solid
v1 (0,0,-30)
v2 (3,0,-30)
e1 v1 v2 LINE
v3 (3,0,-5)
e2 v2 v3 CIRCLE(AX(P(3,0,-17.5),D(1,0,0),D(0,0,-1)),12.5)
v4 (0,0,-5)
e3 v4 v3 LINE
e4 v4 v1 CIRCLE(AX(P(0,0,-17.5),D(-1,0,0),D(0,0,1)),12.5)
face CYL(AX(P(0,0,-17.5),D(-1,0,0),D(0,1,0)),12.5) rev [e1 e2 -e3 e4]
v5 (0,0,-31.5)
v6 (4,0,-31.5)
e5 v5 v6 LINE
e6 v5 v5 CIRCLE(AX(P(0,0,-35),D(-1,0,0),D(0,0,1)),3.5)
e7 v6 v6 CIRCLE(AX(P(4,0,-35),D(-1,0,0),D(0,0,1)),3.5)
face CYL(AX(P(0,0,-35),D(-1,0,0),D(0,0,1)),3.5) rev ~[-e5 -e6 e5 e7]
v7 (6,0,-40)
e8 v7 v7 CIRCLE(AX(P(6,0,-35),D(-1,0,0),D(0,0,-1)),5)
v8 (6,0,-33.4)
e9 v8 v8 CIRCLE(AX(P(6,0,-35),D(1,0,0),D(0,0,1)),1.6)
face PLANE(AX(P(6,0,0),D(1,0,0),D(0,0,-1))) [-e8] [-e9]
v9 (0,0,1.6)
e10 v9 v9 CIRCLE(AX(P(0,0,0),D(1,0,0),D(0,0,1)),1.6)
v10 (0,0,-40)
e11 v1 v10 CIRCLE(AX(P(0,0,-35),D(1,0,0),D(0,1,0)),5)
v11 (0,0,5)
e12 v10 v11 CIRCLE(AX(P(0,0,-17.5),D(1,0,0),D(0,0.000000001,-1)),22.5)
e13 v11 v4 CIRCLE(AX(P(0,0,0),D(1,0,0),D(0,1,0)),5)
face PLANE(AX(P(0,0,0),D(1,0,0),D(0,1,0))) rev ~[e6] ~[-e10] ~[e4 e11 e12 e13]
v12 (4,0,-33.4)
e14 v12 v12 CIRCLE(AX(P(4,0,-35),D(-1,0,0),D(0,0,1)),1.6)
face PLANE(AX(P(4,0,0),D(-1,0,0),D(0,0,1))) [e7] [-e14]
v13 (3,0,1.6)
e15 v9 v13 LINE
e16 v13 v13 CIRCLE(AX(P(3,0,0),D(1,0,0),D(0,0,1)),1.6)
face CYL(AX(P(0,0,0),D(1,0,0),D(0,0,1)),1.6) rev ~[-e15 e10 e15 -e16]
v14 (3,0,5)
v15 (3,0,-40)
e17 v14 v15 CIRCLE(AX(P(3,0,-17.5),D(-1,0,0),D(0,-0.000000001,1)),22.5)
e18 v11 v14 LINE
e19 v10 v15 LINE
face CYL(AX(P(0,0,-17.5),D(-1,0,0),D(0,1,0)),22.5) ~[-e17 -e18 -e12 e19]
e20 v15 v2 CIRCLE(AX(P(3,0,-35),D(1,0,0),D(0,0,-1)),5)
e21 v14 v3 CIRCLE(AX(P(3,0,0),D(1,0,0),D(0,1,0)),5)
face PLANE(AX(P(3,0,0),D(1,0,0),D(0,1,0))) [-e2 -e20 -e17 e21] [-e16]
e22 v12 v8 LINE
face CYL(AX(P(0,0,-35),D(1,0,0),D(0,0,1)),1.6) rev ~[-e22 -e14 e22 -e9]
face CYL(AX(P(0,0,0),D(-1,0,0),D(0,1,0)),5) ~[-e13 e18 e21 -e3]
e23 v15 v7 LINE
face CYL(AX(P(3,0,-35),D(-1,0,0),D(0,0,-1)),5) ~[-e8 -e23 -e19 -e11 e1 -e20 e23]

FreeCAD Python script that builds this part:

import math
import FreeCAD as App
import Part
import Sketcher
from FreeCAD import Vector
Q = App.Units.Quantity

doc = App.newDocument("Part")
params = doc.addObject("Spreadsheet::Sheet", "Params")
for row, (alias, value) in enumerate([
    ("sketch1_radius", "5 mm"),
    ("pad1_length", "3 mm"),
    ("sketch2_diameter", "10 mm"),
    ("pad2_length", "3 mm"),
    ("sketch3_diameter", "3.2 mm"),
    ("hole_diameter", "3.2 mm"),
    ("sketch4_diameter", "7 mm"),
    ("sketch4_diameter2", "3.2 mm"),
    ("pocket1_length", "4 mm"),
], start=1):
    params.set(f"A{row}", alias)
    params.set(f"B{row}", "=" + value)
    params.setAlias(f"B{row}", alias)

body = doc.addObject("PartDesign::Body", "Body")

sketch1 = body.newObject("Sketcher::SketchObject", "Sketch")
sketch1.AttachmentSupport = (doc.getObject("YZ_Plane"), [""])
sketch1.MapMode = "FlatFace"
sketch1.addGeometry(Part.ArcOfCircle(Part.Circle(Vector(0, 0, 0), Vector(0, 0, 1), 5), math.radians(90), math.radians(270)), False)
sketch1.addGeometry(Part.ArcOfCircle(Part.Circle(Vector(0, -18, 0), Vector(0, 0, 1), 12), math.radians(-90), math.radians(90)), False)
sketch1.addGeometry(Part.ArcOfCircle(Part.Circle(Vector(0, -35, 0), Vector(0, 0, 1), 5), math.radians(90), math.radians(270)), False)
sketch1.addGeometry(Part.ArcOfCircle(Part.Circle(Vector(0, -18, 0), Vector(0, 0, 1), 22), math.radians(-90), math.radians(90)), False)
sketch1.addConstraint(Sketcher.Constraint("Tangent", 0, 2, 1, 2))
sketch1.addConstraint(Sketcher.Constraint("Tangent", 1, 1, 2, 1))
sketch1.addConstraint(Sketcher.Constraint("Tangent", 2, 2, 3, 1))
sketch1.addConstraint(Sketcher.Constraint("Tangent", 3, 2, 0, 1))
sketch1.addConstraint(Sketcher.Constraint("Coincident", 0, 3, -1, 1))
sketch1.addConstraint(Sketcher.Constraint("Coincident", 3, 3, 1, 3))
sketch1.addConstraint(Sketcher.Constraint("PointOnObject", 1, 3, -2))
sketch1.addConstraint(Sketcher.Constraint("PointOnObject", 2, 3, -2))
sketch1.addConstraint(Sketcher.Constraint("Radius", 0, Q("5 mm")))
sketch1.addConstraint(Sketcher.Constraint("DistanceY", 2, 3, -1, 1, Q("35 mm")))
sketch1.setExpression("Constraints[8]", "Params.sketch1_radius")
pad1 = body.newObject("PartDesign::Pad", "Pad")
pad1.Profile = sketch1
pad1.setExpression("Length", "Params.pad1_length")

sketch2 = body.newObject("Sketcher::SketchObject", "Sketch001")
sketch2.AttachmentSupport = (doc.getObject("YZ_Plane"), [""])
sketch2.MapMode = "FlatFace"
sketch2.AttachmentOffset = App.Placement(Vector(0, 0, 3), App.Rotation())
sketch2.addGeometry(Part.Circle(Vector(0, -35, 0), Vector(0, 0, 1), 5), False)
sketch2.addConstraint(Sketcher.Constraint("PointOnObject", 0, 3, -2))
sketch2.addConstraint(Sketcher.Constraint("Diameter", 0, Q("10 mm")))
sketch2.addConstraint(Sketcher.Constraint("DistanceY", 0, 3, -1, 1, Q("35 mm")))
sketch2.setExpression("Constraints[1]", "Params.sketch2_diameter")
pad2 = body.newObject("PartDesign::Pad", "Pad001")
pad2.Profile = sketch2
pad2.setExpression("Length", "Params.pad2_length")

sketch3 = body.newObject("Sketcher::SketchObject", "Sketch002")
sketch3.AttachmentSupport = (doc.getObject("YZ_Plane"), [""])
sketch3.MapMode = "FlatFace"
sketch3.addGeometry(Part.Circle(Vector(0, -35, 0), Vector(0, 0, 1), 1.6), False)
sketch3.addGeometry(Part.Circle(Vector(0, 0, 0), Vector(0, 0, 1), 1.6), False)
sketch3.addConstraint(Sketcher.Constraint("Coincident", 1, 3, -1, 1))
sketch3.addConstraint(Sketcher.Constraint("Equal", 0, 1))
sketch3.addConstraint(Sketcher.Constraint("PointOnObject", 0, 3, -2))
sketch3.addConstraint(Sketcher.Constraint("Diameter", 0, Q("3.2 mm")))
sketch3.addConstraint(Sketcher.Constraint("DistanceY", 0, 3, -1, 1, Q("35 mm")))
sketch3.setExpression("Constraints[3]", "Params.sketch3_diameter")
doc.recompute()
hole = body.newObject("PartDesign::Hole", "Hole")
hole.Profile = sketch3
hole.ThreadType = "None"
hole.setExpression("Diameter", "Params.hole_diameter")
hole.DepthType = "ThroughAll"
hole.Reversed = True

sketch4 = body.newObject("Sketcher::SketchObject", "Sketch003")
sketch4.AttachmentSupport = (doc.getObject("YZ_Plane"), [""])
sketch4.MapMode = "FlatFace"
sketch4.addGeometry(Part.Circle(Vector(0, -35, 0), Vector(0, 0, 1), 3.5), False)
sketch4.addGeometry(Part.Circle(Vector(0, -35, 0), Vector(0, 0, 1), 1.6), False)
sketch4.addConstraint(Sketcher.Constraint("Coincident", 1, 3, 0, 3))
sketch4.addConstraint(Sketcher.Constraint("PointOnObject", 0, 3, -2))
sketch4.addConstraint(Sketcher.Constraint("Diameter", 0, Q("7 mm")))
sketch4.addConstraint(Sketcher.Constraint("Diameter", 1, Q("3.2 mm")))
sketch4.addConstraint(Sketcher.Constraint("DistanceY", 0, 3, -1, 1, Q("35 mm")))
sketch4.setExpression("Constraints[2]", "Params.sketch4_diameter")
sketch4.setExpression("Constraints[3]", "Params.sketch4_diameter2")
pocket1 = body.newObject("PartDesign::Pocket", "Pocket")
pocket1.Profile = sketch4
pocket1.setExpression("Length", "Params.pocket1_length")
pocket1.Reversed = True

doc.recompute()
